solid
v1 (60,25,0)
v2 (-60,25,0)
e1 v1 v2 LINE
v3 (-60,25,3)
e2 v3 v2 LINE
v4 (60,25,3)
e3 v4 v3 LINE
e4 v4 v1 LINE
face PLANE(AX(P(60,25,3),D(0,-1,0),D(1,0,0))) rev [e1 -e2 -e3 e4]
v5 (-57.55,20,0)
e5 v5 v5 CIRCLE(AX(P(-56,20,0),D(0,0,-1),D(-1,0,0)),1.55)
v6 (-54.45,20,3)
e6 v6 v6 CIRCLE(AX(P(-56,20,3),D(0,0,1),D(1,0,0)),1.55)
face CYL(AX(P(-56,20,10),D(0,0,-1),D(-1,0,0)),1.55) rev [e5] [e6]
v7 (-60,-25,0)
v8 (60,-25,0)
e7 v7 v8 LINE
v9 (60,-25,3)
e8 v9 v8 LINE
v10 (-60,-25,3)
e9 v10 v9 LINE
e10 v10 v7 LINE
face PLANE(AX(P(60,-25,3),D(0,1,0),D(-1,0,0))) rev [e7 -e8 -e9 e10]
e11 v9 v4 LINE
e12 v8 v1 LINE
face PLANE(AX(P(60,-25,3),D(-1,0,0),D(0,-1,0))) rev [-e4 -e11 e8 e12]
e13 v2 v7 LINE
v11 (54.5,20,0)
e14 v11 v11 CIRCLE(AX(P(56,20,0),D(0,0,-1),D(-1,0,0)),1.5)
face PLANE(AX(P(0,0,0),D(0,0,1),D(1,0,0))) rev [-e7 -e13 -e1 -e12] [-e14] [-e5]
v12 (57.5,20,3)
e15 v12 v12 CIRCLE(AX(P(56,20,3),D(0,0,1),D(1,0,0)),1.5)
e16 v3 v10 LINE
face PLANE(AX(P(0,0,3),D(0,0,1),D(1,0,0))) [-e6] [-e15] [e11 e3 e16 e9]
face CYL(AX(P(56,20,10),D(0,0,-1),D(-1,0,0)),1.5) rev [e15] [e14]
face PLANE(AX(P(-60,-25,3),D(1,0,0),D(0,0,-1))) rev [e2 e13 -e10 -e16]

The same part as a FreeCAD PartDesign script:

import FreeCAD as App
import Part
import Sketcher

V = App.Vector
Q = App.Units.Quantity

doc = App.newDocument("Part")
body = doc.addObject("PartDesign::Body", "Body")

sketch1 = body.newObject("Sketcher::SketchObject", "Sketch")
sketch1.AttachmentSupport = (doc.getObject("XY_Plane"), [""])
sketch1.MapMode = "FlatFace"
sketch1.addGeometry(Part.LineSegment(V(-60, 25, 0), V(-60, -25, 0)), False)
sketch1.addGeometry(Part.LineSegment(V(-60, -25, 0), V(60, -25, 0)), False)
sketch1.addGeometry(Part.LineSegment(V(60, -25, 0), V(60, 25, 0)), False)
sketch1.addGeometry(Part.LineSegment(V(60, 25, 0), V(-60, 25, 0)), False)
sketch1.addConstraint(Sketcher.Constraint("Coincident", 0, 2, 1, 1))
sketch1.addConstraint(Sketcher.Constraint("Coincident", 1, 2, 2, 1))
sketch1.addConstraint(Sketcher.Constraint("Coincident", 2, 2, 3, 1))
sketch1.addConstraint(Sketcher.Constraint("Coincident", 3, 2, 0, 1))
sketch1.addConstraint(Sketcher.Constraint("Vertical", 0))
sketch1.addConstraint(Sketcher.Constraint("Horizontal", 1))
sketch1.addConstraint(Sketcher.Constraint("Vertical", 2))
sketch1.addConstraint(Sketcher.Constraint("Horizontal", 3))
sketch1.addConstraint(Sketcher.Constraint("Symmetric", 0, 2, 2, 2, -1, 1))
sketch1.addConstraint(Sketcher.Constraint("DistanceX", 1, 1, 1, 2, Q("120 mm")))
sketch1.addConstraint(Sketcher.Constraint("DistanceY", 0, 2, 0, 1, Q("50 mm")))
pad1 = body.newObject("PartDesign::Pad", "Pad")
pad1.Profile = sketch1
pad1.Length = 3

sketch2 = body.newObject("Sketcher::SketchObject", "Sketch001")
sketch2.AttachmentSupport = (doc.getObject("XY_Plane"), [""])
sketch2.MapMode = "FlatFace"
sketch2.addGeometry(Part.Circle(V(56, 20, 0), V(0, 0, 1), 1.5), False)
sketch2.addGeometry(Part.Circle(V(-56, 20, 0), V(0, 0, 1), 1.55), False)
sketch2.addConstraint(Sketcher.Constraint("Symmetric", 0, 3, 1, 3, -2))
sketch2.addConstraint(Sketcher.Constraint("Diameter", 0, Q("3 mm")))
sketch2.addConstraint(Sketcher.Constraint("Diameter", 1, Q("3.1 mm")))
sketch2.addConstraint(Sketcher.Constraint("DistanceX", -1, 1, 0, 3, Q("56 mm")))
sketch2.addConstraint(Sketcher.Constraint("DistanceY", -1, 1, 0, 3, Q("20 mm")))
pocket1 = body.newObject("PartDesign::Pocket", "Pocket")
pocket1.Profile = sketch2
pocket1.Length = 10
pocket1.Reversed = True

doc.recompute()
